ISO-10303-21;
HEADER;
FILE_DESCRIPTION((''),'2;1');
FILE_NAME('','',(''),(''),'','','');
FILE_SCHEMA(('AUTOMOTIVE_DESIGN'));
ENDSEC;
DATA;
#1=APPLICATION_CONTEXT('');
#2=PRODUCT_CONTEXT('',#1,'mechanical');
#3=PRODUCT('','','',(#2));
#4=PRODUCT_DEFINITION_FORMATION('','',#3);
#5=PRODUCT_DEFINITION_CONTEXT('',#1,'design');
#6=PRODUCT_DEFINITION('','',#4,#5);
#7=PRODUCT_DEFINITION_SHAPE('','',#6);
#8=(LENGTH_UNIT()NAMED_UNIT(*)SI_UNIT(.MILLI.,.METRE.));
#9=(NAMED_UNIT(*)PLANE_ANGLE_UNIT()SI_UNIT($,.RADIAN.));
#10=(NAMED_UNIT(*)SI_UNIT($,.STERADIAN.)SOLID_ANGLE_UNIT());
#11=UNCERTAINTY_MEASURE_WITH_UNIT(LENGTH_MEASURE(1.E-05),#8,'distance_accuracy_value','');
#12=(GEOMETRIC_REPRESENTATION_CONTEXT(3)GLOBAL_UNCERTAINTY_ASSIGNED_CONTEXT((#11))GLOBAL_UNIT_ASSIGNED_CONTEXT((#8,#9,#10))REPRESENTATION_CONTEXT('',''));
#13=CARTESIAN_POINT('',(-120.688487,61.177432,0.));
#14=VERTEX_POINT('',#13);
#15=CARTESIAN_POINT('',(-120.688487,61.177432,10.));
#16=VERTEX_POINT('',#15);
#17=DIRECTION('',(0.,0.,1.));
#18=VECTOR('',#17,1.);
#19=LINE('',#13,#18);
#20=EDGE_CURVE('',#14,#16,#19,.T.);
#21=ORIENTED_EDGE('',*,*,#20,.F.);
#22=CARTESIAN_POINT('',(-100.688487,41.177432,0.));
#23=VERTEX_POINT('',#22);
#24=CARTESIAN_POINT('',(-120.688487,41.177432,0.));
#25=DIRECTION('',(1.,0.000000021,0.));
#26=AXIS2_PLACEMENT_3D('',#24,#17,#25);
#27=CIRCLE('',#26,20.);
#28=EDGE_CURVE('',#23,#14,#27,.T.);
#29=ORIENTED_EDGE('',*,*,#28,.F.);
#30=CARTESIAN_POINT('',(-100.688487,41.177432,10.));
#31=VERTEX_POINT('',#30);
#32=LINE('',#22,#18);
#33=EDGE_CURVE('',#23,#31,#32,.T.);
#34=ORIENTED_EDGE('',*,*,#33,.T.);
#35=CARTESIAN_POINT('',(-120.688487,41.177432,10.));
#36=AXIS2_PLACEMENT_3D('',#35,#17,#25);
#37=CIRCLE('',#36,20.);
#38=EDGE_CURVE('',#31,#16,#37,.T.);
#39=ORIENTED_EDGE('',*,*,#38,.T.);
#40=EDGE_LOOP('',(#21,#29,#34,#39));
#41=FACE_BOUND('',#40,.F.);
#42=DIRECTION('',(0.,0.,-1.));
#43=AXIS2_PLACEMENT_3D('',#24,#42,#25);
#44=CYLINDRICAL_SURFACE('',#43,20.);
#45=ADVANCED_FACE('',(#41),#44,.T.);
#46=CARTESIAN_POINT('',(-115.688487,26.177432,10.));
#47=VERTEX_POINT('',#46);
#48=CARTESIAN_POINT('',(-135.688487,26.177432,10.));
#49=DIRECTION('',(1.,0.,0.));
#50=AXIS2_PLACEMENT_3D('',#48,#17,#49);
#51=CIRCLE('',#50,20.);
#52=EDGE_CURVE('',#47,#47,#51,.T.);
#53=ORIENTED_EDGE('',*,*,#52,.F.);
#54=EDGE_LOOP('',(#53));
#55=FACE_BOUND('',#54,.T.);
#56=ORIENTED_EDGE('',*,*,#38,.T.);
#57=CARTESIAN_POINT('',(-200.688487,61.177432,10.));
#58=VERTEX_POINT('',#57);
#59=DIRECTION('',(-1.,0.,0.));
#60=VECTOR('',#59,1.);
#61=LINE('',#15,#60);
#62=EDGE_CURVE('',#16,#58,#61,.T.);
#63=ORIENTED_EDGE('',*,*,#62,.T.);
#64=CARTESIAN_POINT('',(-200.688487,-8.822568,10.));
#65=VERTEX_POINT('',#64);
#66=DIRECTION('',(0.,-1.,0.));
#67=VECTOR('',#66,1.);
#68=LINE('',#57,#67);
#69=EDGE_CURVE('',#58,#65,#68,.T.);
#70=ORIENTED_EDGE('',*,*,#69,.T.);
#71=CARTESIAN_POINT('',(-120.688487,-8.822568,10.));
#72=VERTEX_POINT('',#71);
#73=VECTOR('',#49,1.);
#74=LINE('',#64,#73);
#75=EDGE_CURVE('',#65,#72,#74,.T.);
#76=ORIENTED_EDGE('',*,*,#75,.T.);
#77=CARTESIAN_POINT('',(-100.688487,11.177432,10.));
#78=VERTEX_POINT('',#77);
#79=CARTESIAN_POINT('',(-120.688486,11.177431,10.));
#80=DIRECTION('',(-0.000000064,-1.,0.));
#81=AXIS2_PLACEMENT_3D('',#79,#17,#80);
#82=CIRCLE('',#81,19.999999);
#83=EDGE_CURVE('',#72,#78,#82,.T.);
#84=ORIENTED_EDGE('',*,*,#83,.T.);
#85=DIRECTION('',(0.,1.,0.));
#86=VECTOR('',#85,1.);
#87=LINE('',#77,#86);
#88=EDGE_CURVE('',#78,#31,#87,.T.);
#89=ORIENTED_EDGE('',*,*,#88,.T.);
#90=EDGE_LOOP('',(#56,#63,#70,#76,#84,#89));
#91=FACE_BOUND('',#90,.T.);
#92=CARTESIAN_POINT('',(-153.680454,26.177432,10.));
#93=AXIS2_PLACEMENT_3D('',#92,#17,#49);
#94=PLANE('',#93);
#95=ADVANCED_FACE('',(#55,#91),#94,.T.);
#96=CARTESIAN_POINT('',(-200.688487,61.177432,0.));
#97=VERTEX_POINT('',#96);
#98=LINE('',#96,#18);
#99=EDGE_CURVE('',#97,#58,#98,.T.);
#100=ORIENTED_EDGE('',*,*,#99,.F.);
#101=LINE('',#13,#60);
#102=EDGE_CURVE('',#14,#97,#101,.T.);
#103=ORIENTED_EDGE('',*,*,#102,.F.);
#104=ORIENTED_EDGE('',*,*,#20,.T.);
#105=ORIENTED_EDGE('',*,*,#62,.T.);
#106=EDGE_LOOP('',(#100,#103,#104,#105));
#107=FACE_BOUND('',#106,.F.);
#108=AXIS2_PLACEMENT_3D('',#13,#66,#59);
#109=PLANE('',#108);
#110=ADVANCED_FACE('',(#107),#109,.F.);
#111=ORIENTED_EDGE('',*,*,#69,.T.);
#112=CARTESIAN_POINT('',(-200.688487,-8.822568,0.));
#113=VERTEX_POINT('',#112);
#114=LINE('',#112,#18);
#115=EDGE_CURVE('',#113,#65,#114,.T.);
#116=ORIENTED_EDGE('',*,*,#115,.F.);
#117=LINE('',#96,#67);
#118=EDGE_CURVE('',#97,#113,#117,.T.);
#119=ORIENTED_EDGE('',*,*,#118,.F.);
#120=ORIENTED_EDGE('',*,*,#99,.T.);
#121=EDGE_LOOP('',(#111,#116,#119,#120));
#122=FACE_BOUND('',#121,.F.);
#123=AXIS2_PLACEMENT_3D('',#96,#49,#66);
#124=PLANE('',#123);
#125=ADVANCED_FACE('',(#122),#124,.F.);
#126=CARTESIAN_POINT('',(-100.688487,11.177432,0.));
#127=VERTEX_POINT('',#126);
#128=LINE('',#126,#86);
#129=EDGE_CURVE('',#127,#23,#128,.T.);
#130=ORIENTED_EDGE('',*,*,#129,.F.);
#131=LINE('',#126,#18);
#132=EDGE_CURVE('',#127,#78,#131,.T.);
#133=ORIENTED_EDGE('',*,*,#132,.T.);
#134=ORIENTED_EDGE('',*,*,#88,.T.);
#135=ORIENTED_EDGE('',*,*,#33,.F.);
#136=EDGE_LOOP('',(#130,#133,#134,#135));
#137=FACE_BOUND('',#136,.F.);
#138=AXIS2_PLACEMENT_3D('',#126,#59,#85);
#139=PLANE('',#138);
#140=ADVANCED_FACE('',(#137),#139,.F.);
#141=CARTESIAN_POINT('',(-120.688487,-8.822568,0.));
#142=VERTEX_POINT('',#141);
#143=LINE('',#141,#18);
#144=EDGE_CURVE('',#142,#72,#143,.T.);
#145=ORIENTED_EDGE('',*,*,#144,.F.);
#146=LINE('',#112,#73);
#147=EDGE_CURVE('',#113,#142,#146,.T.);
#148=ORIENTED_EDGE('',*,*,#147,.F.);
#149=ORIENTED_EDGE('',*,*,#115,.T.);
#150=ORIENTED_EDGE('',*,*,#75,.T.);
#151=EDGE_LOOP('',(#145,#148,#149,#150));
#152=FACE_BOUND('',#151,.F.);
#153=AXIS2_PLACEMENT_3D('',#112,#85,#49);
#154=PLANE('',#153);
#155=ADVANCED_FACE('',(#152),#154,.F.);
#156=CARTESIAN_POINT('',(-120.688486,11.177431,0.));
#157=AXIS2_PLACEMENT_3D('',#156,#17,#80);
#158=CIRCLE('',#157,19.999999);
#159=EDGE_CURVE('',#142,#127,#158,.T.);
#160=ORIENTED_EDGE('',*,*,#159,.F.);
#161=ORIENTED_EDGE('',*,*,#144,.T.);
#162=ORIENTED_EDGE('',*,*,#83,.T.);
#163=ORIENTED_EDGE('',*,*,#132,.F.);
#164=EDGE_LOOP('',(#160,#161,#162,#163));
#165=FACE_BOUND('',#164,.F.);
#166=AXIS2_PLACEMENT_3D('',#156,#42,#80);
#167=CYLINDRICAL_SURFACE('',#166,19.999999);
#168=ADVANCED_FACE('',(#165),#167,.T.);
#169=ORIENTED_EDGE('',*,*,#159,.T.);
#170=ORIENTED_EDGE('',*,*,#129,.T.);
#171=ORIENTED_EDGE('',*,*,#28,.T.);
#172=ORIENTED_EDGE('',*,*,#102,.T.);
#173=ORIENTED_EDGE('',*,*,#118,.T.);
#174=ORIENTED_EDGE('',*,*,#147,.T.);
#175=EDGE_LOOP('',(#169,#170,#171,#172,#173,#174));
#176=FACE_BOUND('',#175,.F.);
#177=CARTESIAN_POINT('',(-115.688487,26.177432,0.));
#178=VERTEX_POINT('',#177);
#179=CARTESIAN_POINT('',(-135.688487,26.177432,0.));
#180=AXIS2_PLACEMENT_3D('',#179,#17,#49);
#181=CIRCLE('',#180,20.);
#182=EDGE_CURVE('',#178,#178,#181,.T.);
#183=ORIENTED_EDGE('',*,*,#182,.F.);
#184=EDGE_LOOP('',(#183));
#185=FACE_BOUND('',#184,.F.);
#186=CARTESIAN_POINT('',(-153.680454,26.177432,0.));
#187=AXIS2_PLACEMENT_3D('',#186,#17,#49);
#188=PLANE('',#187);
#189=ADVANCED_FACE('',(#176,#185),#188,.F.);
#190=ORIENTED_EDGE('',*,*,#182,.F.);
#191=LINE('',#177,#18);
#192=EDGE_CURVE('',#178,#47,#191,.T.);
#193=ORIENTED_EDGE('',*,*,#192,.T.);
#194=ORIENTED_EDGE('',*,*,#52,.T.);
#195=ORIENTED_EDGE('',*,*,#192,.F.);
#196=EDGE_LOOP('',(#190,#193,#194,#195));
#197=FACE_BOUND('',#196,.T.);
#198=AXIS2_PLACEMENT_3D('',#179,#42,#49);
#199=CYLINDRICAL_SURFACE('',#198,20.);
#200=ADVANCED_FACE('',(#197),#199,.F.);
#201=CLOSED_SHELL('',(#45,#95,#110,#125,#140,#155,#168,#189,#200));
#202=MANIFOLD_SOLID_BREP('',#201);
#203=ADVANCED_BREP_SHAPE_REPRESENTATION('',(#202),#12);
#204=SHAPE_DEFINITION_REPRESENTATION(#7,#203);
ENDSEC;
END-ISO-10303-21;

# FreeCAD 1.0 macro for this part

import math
import FreeCAD as App
import Part
import Sketcher
from FreeCAD import Vector

doc = App.newDocument("Part")
body = doc.addObject("PartDesign::Body", "Body")

# Sketch on XY plane
sketch1 = body.newObject("Sketcher::SketchObject", "Sketch")
sketch1.AttachmentSupport = (doc.getObject("XY_Plane"), [""])
sketch1.MapMode = "FlatFace"
sketch1.addGeometry(Part.LineSegment(Vector(-121, 61, 0), Vector(-201, 61, 0)), False)
sketch1.addGeometry(Part.LineSegment(Vector(-201, 61, 0), Vector(-201, -9, 0)), False)
sketch1.addGeometry(Part.LineSegment(Vector(-201, -9, 0), Vector(-121, -9, 0)), False)
sketch1.addGeometry(Part.ArcOfCircle(Part.Circle(Vector(-121, 11, 0), Vector(0, 0, 1), 20), math.radians(-90), math.radians(0)), False)
sketch1.addGeometry(Part.LineSegment(Vector(-101, 11, 0), Vector(-101, 41, 0)), False)
sketch1.addGeometry(Part.ArcOfCircle(Part.Circle(Vector(-121, 41, 0), Vector(0, 0, 1), 20), math.radians(0), math.radians(90)), False)
sketch1.addGeometry(Part.Circle(Vector(-136, 26, 0), Vector(0, 0, 1), 20), False)
sketch1.addConstraint(Sketcher.Constraint("Coincident", 0, 2, 1, 1))
sketch1.addConstraint(Sketcher.Constraint("Coincident", 1, 2, 2, 1))
sketch1.addConstraint(Sketcher.Constraint("Tangent", 2, 2, 3, 1))
sketch1.addConstraint(Sketcher.Constraint("Tangent", 3, 2, 4, 1))
sketch1.addConstraint(Sketcher.Constraint("Tangent", 4, 2, 5, 1))
sketch1.addConstraint(Sketcher.Constraint("Tangent", 5, 2, 0, 1))
sketch1.addConstraint(Sketcher.Constraint("Horizontal", 0))
sketch1.addConstraint(Sketcher.Constraint("Vertical", 1))
sketch1.addConstraint(Sketcher.Constraint("Horizontal", 2))
sketch1.addConstraint(Sketcher.Constraint("Vertical", 4))
sketch1.addConstraint(Sketcher.Constraint("Equal", 3, 5))
sketch1.addConstraint(Sketcher.Constraint("Equal", 5, 6))
sketch1.addConstraint(Sketcher.Constraint("Diameter", 6, 40.0))
sketch1.addConstraint(Sketcher.Constraint("DistanceX", 0, 2, 0, 1, 80.0))
sketch1.addConstraint(Sketcher.Constraint("DistanceY", 1, 2, 1, 1, 70.0))
sketch1.addConstraint(Sketcher.Constraint("DistanceX", 6, 3, 5, 3, 15.0))
sketch1.addConstraint(Sketcher.Constraint("DistanceY", 6, 3, 5, 3, 15.0))
sketch1.addConstraint(Sketcher.Constraint("DistanceY", -1, 1, 3, 3, 11.177431))
sketch1.addConstraint(Sketcher.Constraint("DistanceX", 3, 3, -1, 1, 120.688486))
pad1 = body.newObject("PartDesign::Pad", "Pad")
pad1.Profile = sketch1
pad1.Length = 10

doc.recompute()
